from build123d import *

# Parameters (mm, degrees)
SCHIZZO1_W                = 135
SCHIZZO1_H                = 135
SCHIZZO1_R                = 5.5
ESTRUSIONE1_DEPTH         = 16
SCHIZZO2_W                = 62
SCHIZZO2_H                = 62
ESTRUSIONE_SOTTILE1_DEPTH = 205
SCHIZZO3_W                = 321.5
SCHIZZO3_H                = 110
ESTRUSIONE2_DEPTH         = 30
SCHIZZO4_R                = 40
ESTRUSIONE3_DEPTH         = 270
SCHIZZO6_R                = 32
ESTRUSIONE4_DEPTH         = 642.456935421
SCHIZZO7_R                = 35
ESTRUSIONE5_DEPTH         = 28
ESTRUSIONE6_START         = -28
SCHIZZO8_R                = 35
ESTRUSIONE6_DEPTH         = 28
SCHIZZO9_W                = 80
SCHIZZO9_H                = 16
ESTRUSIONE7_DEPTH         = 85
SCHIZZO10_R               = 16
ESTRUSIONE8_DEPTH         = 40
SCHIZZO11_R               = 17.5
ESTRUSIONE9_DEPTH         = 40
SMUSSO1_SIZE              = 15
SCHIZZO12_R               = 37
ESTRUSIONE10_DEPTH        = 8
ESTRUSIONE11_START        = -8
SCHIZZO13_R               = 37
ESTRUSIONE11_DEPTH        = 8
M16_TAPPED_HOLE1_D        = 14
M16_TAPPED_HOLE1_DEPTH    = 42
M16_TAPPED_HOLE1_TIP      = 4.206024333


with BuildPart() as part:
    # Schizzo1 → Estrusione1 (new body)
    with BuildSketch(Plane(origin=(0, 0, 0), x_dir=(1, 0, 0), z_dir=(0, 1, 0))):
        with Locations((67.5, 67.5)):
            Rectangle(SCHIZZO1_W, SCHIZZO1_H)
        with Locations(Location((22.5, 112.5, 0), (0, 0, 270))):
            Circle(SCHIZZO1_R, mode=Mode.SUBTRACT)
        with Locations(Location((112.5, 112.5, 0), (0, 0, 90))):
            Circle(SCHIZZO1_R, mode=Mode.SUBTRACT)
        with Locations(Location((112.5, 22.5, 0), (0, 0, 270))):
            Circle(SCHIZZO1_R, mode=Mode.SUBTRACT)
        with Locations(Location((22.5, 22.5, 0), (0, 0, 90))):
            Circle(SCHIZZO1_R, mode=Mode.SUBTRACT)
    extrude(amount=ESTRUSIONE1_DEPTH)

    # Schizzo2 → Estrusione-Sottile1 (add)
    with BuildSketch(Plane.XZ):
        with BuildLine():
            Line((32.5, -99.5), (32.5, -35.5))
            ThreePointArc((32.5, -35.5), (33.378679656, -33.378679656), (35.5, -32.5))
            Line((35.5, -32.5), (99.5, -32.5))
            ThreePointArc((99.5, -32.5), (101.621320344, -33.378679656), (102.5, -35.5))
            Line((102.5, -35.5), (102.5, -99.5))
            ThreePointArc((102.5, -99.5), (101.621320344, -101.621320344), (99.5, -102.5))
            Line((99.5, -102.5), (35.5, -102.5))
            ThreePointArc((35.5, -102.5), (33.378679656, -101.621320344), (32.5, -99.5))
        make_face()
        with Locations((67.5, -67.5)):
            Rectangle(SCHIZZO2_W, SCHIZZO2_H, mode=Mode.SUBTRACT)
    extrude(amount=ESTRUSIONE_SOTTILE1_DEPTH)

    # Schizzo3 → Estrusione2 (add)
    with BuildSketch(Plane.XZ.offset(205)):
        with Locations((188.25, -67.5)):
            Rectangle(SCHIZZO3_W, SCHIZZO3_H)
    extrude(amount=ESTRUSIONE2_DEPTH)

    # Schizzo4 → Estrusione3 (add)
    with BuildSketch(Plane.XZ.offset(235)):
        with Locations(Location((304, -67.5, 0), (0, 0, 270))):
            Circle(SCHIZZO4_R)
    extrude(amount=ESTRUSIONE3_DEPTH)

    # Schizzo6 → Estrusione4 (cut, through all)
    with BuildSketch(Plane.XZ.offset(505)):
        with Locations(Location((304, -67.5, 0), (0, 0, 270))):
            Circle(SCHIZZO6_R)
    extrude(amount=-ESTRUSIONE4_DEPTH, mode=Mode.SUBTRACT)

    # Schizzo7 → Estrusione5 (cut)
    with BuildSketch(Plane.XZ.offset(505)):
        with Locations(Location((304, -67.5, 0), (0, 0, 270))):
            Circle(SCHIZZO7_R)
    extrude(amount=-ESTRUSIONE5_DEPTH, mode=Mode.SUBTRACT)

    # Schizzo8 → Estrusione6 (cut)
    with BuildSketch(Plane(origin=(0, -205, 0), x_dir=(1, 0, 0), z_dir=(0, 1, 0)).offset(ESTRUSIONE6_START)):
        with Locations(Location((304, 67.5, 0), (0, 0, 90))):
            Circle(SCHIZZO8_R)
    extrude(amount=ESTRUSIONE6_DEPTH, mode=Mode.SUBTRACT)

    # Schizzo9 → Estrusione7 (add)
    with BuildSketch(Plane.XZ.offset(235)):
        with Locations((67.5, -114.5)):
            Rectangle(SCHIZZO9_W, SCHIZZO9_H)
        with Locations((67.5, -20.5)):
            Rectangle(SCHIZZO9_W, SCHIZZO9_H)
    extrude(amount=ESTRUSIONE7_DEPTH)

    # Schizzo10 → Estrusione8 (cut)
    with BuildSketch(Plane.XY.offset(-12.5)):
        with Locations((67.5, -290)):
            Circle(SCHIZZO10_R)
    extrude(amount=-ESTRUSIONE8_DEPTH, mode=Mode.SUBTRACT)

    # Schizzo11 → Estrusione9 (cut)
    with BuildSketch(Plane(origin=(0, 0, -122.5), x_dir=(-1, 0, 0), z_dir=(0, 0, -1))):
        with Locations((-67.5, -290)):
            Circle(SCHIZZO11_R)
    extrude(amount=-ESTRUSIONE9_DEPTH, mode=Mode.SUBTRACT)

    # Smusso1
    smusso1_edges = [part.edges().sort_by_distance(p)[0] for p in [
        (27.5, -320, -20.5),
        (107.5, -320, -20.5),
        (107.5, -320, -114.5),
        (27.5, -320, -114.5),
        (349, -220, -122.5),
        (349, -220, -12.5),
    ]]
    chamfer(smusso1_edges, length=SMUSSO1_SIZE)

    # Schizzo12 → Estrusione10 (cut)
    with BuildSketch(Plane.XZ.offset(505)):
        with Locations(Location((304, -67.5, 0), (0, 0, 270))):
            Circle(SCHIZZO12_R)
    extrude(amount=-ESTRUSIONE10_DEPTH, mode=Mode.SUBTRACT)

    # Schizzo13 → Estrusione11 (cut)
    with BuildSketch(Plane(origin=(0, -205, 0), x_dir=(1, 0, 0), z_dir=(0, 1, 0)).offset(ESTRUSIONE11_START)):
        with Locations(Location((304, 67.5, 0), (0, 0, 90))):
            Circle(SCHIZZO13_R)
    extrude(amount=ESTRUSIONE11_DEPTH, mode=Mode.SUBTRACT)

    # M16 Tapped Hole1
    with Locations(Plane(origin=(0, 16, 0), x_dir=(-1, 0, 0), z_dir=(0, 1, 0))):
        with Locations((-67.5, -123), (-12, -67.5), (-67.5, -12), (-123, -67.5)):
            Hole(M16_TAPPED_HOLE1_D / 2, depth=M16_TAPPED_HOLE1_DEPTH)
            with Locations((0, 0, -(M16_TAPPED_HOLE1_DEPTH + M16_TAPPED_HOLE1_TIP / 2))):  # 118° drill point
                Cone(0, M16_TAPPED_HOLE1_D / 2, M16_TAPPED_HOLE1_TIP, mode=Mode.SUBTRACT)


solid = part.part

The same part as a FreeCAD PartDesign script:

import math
import FreeCAD as App
import Part
import Sketcher

V = App.Vector
Q = App.Units.Quantity


def edges_at(feature, points):
    """Names of the edges that pass closest to the given points."""
    edges = feature.Shape.Edges
    near = lambda p: min(range(len(edges)), key=lambda i: edges[i].distToShape(Part.Vertex(*p))[0])
    return sorted({f"Edge{near(p) + 1}" for p in points})


def add_polygon(sketch, points):
    """Adds a closed chain of lines whose ends are joined by coincident constraints."""
    first, n = sketch.GeometryCount, len(points)
    for a, b in zip(points, points[1:] + points[:1]):
        sketch.addGeometry(Part.LineSegment(App.Vector(*a, 0), App.Vector(*b, 0)), False)
    for i in range(n):
        sketch.addConstraint(Sketcher.Constraint("Coincident", first + i, 2, first + (i + 1) % n, 1))

doc = App.newDocument("Part")
body = doc.addObject("PartDesign::Body", "Body")

# Sketch on XZ plane
sketch1 = body.newObject("Sketcher::SketchObject", "Sketch")
sketch1.AttachmentSupport = (doc.getObject("XZ_Plane"), [""])
sketch1.MapMode = "FlatFace"
add_polygon(sketch1, [(0, -135), (0, 0), (135, 0), (135, -135)])  # lines 0-3
sketch1.addGeometry(Part.Circle(V(22.5, -22.5, 0), V(0, 0, 1), 5.5), False)  # 4
sketch1.addGeometry(Part.Circle(V(112.5, -22.5, 0), V(0, 0, 1), 5.5), False)  # 5
sketch1.addGeometry(Part.Circle(V(22.5, -112.5, 0), V(0, 0, 1), 5.5), False)  # 6
sketch1.addGeometry(Part.Circle(V(112.5, -112.5, 0), V(0, 0, 1), 5.5), False)  # 7
sketch1.addConstraint([
    Sketcher.Constraint("Vertical", 0),
    Sketcher.Constraint("Horizontal", 1),
    Sketcher.Constraint("Vertical", 2),
    Sketcher.Constraint("Horizontal", 3),
    Sketcher.Constraint("Coincident", 0, 2, -1, 1),
    Sketcher.Constraint("Equal", 4, 5),
    Sketcher.Constraint("Equal", 5, 6),
    Sketcher.Constraint("Equal", 6, 7),
    Sketcher.Constraint("Horizontal", 4, 3, 5, 3),
    Sketcher.Constraint("Horizontal", 6, 3, 7, 3),
    Sketcher.Constraint("Vertical", 4, 3, 6, 3),
    Sketcher.Constraint("Vertical", 5, 3, 7, 3),
    Sketcher.Constraint("Equal", 3, 0),
    Sketcher.Constraint("Diameter", 4, Q("11 mm")),
    Sketcher.Constraint("DistanceX", 1, 1, 1, 2, Q("135 mm")),
    Sketcher.Constraint("DistanceX", 4, 3, 5, 3, Q("90 mm")),
    Sketcher.Constraint("DistanceY", 6, 3, 4, 3, Q("90 mm")),
    Sketcher.Constraint("DistanceX", -1, 1, 4, 3, Q("22.5 mm")),
    Sketcher.Constraint("DistanceY", 4, 3, -1, 1, Q("22.5 mm")),
])
pad1 = body.newObject("PartDesign::Pad", "Pad")
pad1.Profile = sketch1
pad1.Length = 16
pad1.Reversed = True

# Sketch on XZ plane
sketch2 = body.newObject("Sketcher::SketchObject", "Sketch001")
sketch2.AttachmentSupport = (doc.getObject("XZ_Plane"), [""])
sketch2.MapMode = "FlatFace"
sketch2.addGeometry(Part.LineSegment(V(32.5, -35.5, 0), V(32.5, -99.5, 0)), False)  # 0
sketch2.addGeometry(Part.ArcOfCircle(Part.Circle(V(35.5, -99.5, 0), V(0, 0, 1), 3), math.radians(180), math.radians(270)), False)  # 1
sketch2.addGeometry(Part.LineSegment(V(35.5, -102.5, 0), V(99.5, -102.5, 0)), False)  # 2
sketch2.addGeometry(Part.ArcOfCircle(Part.Circle(V(99.5, -99.5, 0), V(0, 0, 1), 3), math.radians(-90), math.radians(0)), False)  # 3
sketch2.addGeometry(Part.LineSegment(V(102.5, -99.5, 0), V(102.5, -35.5, 0)), False)  # 4
sketch2.addGeometry(Part.ArcOfCircle(Part.Circle(V(99.5, -35.5, 0), V(0, 0, 1), 3), math.radians(0), math.radians(90)), False)  # 5
sketch2.addGeometry(Part.LineSegment(V(99.5, -32.5, 0), V(35.5, -32.5, 0)), False)  # 6
sketch2.addGeometry(Part.ArcOfCircle(Part.Circle(V(35.5, -35.5, 0), V(0, 0, 1), 3), math.radians(90), math.radians(180)), False)  # 7
add_polygon(sketch2, [(36.5, -98.5), (36.5, -36.5), (98.5, -36.5), (98.5, -98.5)])  # lines 8-11
sketch2.addConstraint([
    Sketcher.Constraint("Tangent", 0, 2, 1, 1),
    Sketcher.Constraint("Tangent", 1, 2, 2, 1),
    Sketcher.Constraint("Tangent", 2, 2, 3, 1),
    Sketcher.Constraint("Tangent", 3, 2, 4, 1),
    Sketcher.Constraint("Tangent", 4, 2, 5, 1),
    Sketcher.Constraint("Tangent", 5, 2, 6, 1),
    Sketcher.Constraint("Tangent", 6, 2, 7, 1),
    Sketcher.Constraint("Tangent", 7, 2, 0, 1),
    Sketcher.Constraint("Vertical", 0),
    Sketcher.Constraint("Horizontal", 2),
    Sketcher.Constraint("Vertical", 4),
    Sketcher.Constraint("Horizontal", 6),
    Sketcher.Constraint("Vertical", 8),
    Sketcher.Constraint("Horizontal", 9),
    Sketcher.Constraint("Vertical", 10),
    Sketcher.Constraint("Horizontal", 11),
    Sketcher.Constraint("Equal", 1, 3),
    Sketcher.Constraint("Equal", 3, 5),
    Sketcher.Constraint("Equal", 5, 7),
    Sketcher.Constraint("Equal", 6, 0),
    Sketcher.Constraint("Equal", 11, 8),
    Sketcher.Constraint("Radius", 1, Q("3 mm")),
    Sketcher.Constraint("DistanceX", 2, 1, 2, 2, Q("64 mm")),
    Sketcher.Constraint("DistanceX", 9, 1, 9, 2, Q("62 mm")),
    Sketcher.Constraint("DistanceX", 7, 3, 8, 2, Q("1 mm")),
    Sketcher.Constraint("DistanceY", 8, 2, 7, 3, Q("1 mm")),
    Sketcher.Constraint("DistanceX", -1, 1, 1, 3, Q("35.5 mm")),
    Sketcher.Constraint("DistanceY", 1, 3, -1, 1, Q("99.5 mm")),
])
pad2 = body.newObject("PartDesign::Pad", "Pad001")
pad2.Profile = sketch2
pad2.Length = 205

# Sketch on XZ plane
sketch3 = body.newObject("Sketcher::SketchObject", "Sketch002")
sketch3.AttachmentSupport = (doc.getObject("XZ_Plane"), [""])
sketch3.MapMode = "FlatFace"
sketch3.AttachmentOffset = App.Placement(V(0, 0, 205), App.Rotation())
add_polygon(sketch3, [(27.5, -12.5), (27.5, -122.5), (349, -122.5), (349, -12.5)])  # lines 0-3
sketch3.addConstraint([
    Sketcher.Constraint("Vertical", 0),
    Sketcher.Constraint("Horizontal", 1),
    Sketcher.Constraint("Vertical", 2),
    Sketcher.Constraint("Horizontal", 3),
    Sketcher.Constraint("DistanceY", 0, 2, 0, 1, Q("110 mm")),
    Sketcher.Constraint("DistanceX", 1, 1, 1, 2, Q("321.5 mm")),
    Sketcher.Constraint("DistanceX", -1, 1, 1, 2, Q("349 mm")),
    Sketcher.Constraint("DistanceY", 0, 2, -1, 1, Q("122.5 mm")),
])
pad3 = body.newObject("PartDesign::Pad", "Pad002")
pad3.Profile = sketch3
pad3.Length = 30

# Sketch on XZ plane
sketch4 = body.newObject("Sketcher::SketchObject", "Sketch003")
sketch4.AttachmentSupport = (doc.getObject("XZ_Plane"), [""])
sketch4.MapMode = "FlatFace"
sketch4.AttachmentOffset = App.Placement(V(0, 0, 235), App.Rotation())
sketch4.addGeometry(Part.Circle(V(304, -67.5, 0), V(0, 0, 1), 40), False)
sketch4.addConstraint([
    Sketcher.Constraint("Diameter", 0, Q("80 mm")),
    Sketcher.Constraint("DistanceX", -1, 1, 0, 3, Q("304 mm")),
    Sketcher.Constraint("DistanceY", 0, 3, -1, 1, Q("67.5 mm")),
])
pad4 = body.newObject("PartDesign::Pad", "Pad003")
pad4.Profile = sketch4
pad4.Length = 270

# Sketch on XZ plane
sketch5 = body.newObject("Sketcher::SketchObject", "Sketch004")
sketch5.AttachmentSupport = (doc.getObject("XZ_Plane"), [""])
sketch5.MapMode = "FlatFace"
sketch5.AttachmentOffset = App.Placement(V(0, 0, 505), App.Rotation())
sketch5.addGeometry(Part.Circle(V(304, -67.5, 0), V(0, 0, 1), 32), False)
sketch5.addConstraint([
    Sketcher.Constraint("Diameter", 0, Q("64 mm")),
    Sketcher.Constraint("DistanceX", -1, 1, 0, 3, Q("304 mm")),
    Sketcher.Constraint("DistanceY", 0, 3, -1, 1, Q("67.5 mm")),
])
pocket1 = body.newObject("PartDesign::Pocket", "Pocket")
pocket1.Profile = sketch5
pocket1.Type = "ThroughAll"

# Sketch on XZ plane
sketch6 = body.newObject("Sketcher::SketchObject", "Sketch005")
sketch6.AttachmentSupport = (doc.getObject("XZ_Plane"), [""])
sketch6.MapMode = "FlatFace"
sketch6.AttachmentOffset = App.Placement(V(0, 0, 505), App.Rotation())
sketch6.addGeometry(Part.Circle(V(304, -67.5, 0), V(0, 0, 1), 35), False)
sketch6.addConstraint([
    Sketcher.Constraint("Diameter", 0, Q("70 mm")),
    Sketcher.Constraint("DistanceX", -1, 1, 0, 3, Q("304 mm")),
    Sketcher.Constraint("DistanceY", 0, 3, -1, 1, Q("67.5 mm")),
])
pocket2 = body.newObject("PartDesign::Pocket", "Pocket001")
pocket2.Profile = sketch6
pocket2.Length = 28

# Sketch on XZ plane
sketch7 = body.newObject("Sketcher::SketchObject", "Sketch006")
sketch7.AttachmentSupport = (doc.getObject("XZ_Plane"), [""])
sketch7.MapMode = "FlatFace"
sketch7.AttachmentOffset = App.Placement(V(0, 0, 233), App.Rotation())
sketch7.addGeometry(Part.Circle(V(304, -67.5, 0), V(0, 0, 1), 35), False)
sketch7.addConstraint([
    Sketcher.Constraint("Diameter", 0, Q("70 mm")),
    Sketcher.Constraint("DistanceX", -1, 1, 0, 3, Q("304 mm")),
    Sketcher.Constraint("DistanceY", 0, 3, -1, 1, Q("67.5 mm")),
])
pocket3 = body.newObject("PartDesign::Pocket", "Pocket002")
pocket3.Profile = sketch7
pocket3.Length = 28

# Sketch on XZ plane
sketch8 = body.newObject("Sketcher::SketchObject", "Sketch007")
sketch8.AttachmentSupport = (doc.getObject("XZ_Plane"), [""])
sketch8.MapMode = "FlatFace"
sketch8.AttachmentOffset = App.Placement(V(0, 0, 235), App.Rotation())
add_polygon(sketch8, [(27.5, -106.5), (27.5, -122.5), (107.5, -122.5), (107.5, -106.5)])  # lines 0-3
add_polygon(sketch8, [(27.5, -12.5), (27.5, -28.5), (107.5, -28.5), (107.5, -12.5)])  # lines 4-7
sketch8.addConstraint([
    Sketcher.Constraint("Vertical", 0),
    Sketcher.Constraint("Horizontal", 1),
    Sketcher.Constraint("Vertical", 2),
    Sketcher.Constraint("Horizontal", 3),
    Sketcher.Constraint("Vertical", 4),
    Sketcher.Constraint("Horizontal", 5),
    Sketcher.Constraint("Vertical", 6),
    Sketcher.Constraint("Horizontal", 7),
    Sketcher.Constraint("Vertical", 3, 2, 4, 2),
    Sketcher.Constraint("Vertical", 2, 2, 5, 2),
    Sketcher.Constraint("Equal", 2, 4),
    Sketcher.Constraint("DistanceX", 1, 1, 1, 2, Q("80 mm")),
    Sketcher.Constraint("DistanceY", 0, 2, 0, 1, Q("16 mm")),
    Sketcher.Constraint("DistanceY", 3, 2, 4, 2, Q("78 mm")),
    Sketcher.Constraint("DistanceX", -1, 1, 0, 2, Q("27.5 mm")),
    Sketcher.Constraint("DistanceY", 0, 2, -1, 1, Q("122.5 mm")),
])
pad5 = body.newObject("PartDesign::Pad", "Pad004")
pad5.Profile = sketch8
pad5.Length = 85

# Sketch on XY plane
sketch9 = body.newObject("Sketcher::SketchObject", "Sketch008")
sketch9.AttachmentSupport = (doc.getObject("XY_Plane"), [""])
sketch9.MapMode = "FlatFace"
sketch9.AttachmentOffset = App.Placement(V(0, 0, -12.5), App.Rotation())
sketch9.addGeometry(Part.Circle(V(67.5, -290, 0), V(0, 0, 1), 16), False)
sketch9.addConstraint([
    Sketcher.Constraint("Diameter", 0, Q("32 mm")),
    Sketcher.Constraint("DistanceY", 0, 3, -1, 1, Q("290 mm")),
    Sketcher.Constraint("DistanceX", -1, 1, 0, 3, Q("67.5 mm")),
])
pocket4 = body.newObject("PartDesign::Pocket", "Pocket003")
pocket4.Profile = sketch9
pocket4.Length = 40

# Sketch on XY plane
sketch10 = body.newObject("Sketcher::SketchObject", "Sketch009")
sketch10.AttachmentSupport = (doc.getObject("XY_Plane"), [""])
sketch10.MapMode = "FlatFace"
sketch10.AttachmentOffset = App.Placement(V(0, 0, -122.5), App.Rotation())
sketch10.addGeometry(Part.Circle(V(67.5, -290, 0), V(0, 0, 1), 17.5), False)
sketch10.addConstraint([
    Sketcher.Constraint("Diameter", 0, Q("35 mm")),
    Sketcher.Constraint("DistanceY", 0, 3, -1, 1, Q("290 mm")),
    Sketcher.Constraint("DistanceX", -1, 1, 0, 3, Q("67.5 mm")),
])
pocket5 = body.newObject("PartDesign::Pocket", "Pocket004")
pocket5.Profile = sketch10
pocket5.Length = 40
pocket5.Reversed = True
doc.recompute()

chamfer = body.newObject("PartDesign::Chamfer", "Chamfer")
chamfer.Base = (pocket5, edges_at(pocket5, [
    (27.5, -320, -20.5),
    (107.5, -320, -20.5),
    (107.5, -320, -114.5),
    (27.5, -320, -114.5),
    (349, -220, -122.5),
    (349, -220, -12.5),
]))
chamfer.Size = 15

# Sketch on XZ plane
sketch11 = body.newObject("Sketcher::SketchObject", "Sketch010")
sketch11.AttachmentSupport = (doc.getObject("XZ_Plane"), [""])
sketch11.MapMode = "FlatFace"
sketch11.AttachmentOffset = App.Placement(V(0, 0, 505), App.Rotation())
sketch11.addGeometry(Part.Circle(V(304, -67.5, 0), V(0, 0, 1), 37), False)
sketch11.addConstraint([
    Sketcher.Constraint("Diameter", 0, Q("74 mm")),
    Sketcher.Constraint("DistanceX", -1, 1, 0, 3, Q("304 mm")),
    Sketcher.Constraint("DistanceY", 0, 3, -1, 1, Q("67.5 mm")),
])
pocket6 = body.newObject("PartDesign::Pocket", "Pocket005")
pocket6.Profile = sketch11
pocket6.Length = 8

# Sketch on XZ plane
sketch12 = body.newObject("Sketcher::SketchObject", "Sketch011")
sketch12.AttachmentSupport = (doc.getObject("XZ_Plane"), [""])
sketch12.MapMode = "FlatFace"
sketch12.AttachmentOffset = App.Placement(V(0, 0, 213), App.Rotation())
sketch12.addGeometry(Part.Circle(V(304, -67.5, 0), V(0, 0, 1), 37), False)
sketch12.addConstraint([
    Sketcher.Constraint("Diameter", 0, Q("74 mm")),
    Sketcher.Constraint("DistanceX", -1, 1, 0, 3, Q("304 mm")),
    Sketcher.Constraint("DistanceY", 0, 3, -1, 1, Q("67.5 mm")),
])
pocket7 = body.newObject("PartDesign::Pocket", "Pocket006")
pocket7.Profile = sketch12
pocket7.Length = 8

# Sketch on XZ plane
sketch13 = body.newObject("Sketcher::SketchObject", "Sketch012")
sketch13.AttachmentSupport = (doc.getObject("XZ_Plane"), [""])
sketch13.MapMode = "FlatFace"
sketch13.AttachmentOffset = App.Placement(V(0, 0, -16), App.Rotation())
sketch13.addGeometry([
    Part.Circle(V(67.5, -123, 0), V(0, 0, 1), 7),
    Part.Circle(V(12, -67.5, 0), V(0, 0, 1), 7),
    Part.Circle(V(67.5, -12, 0), V(0, 0, 1), 7),
    Part.Circle(V(123, -67.5, 0), V(0, 0, 1), 7),
], False)
sketch13.addConstraint([
    Sketcher.Constraint("Equal", 0, 1),
    Sketcher.Constraint("Equal", 1, 2),
    Sketcher.Constraint("Equal", 2, 3),
    Sketcher.Constraint("Horizontal", 1, 3, 3, 3),
    Sketcher.Constraint("Vertical", 0, 3, 2, 3),
    Sketcher.Constraint("Diameter", 0, Q("14 mm")),
    Sketcher.Constraint("DistanceY", 0, 3, -1, 1, Q("123 mm")),
    Sketcher.Constraint("DistanceX", -1, 1, 1, 3, Q("12 mm")),
    Sketcher.Constraint("DistanceY", 2, 3, -1, 1, Q("12 mm")),
    Sketcher.Constraint("DistanceX", -1, 1, 3, 3, Q("123 mm")),
    Sketcher.Constraint("DistanceX", -1, 1, 0, 3, Q("67.5 mm")),
    Sketcher.Constraint("DistanceY", 1, 3, -1, 1, Q("67.5 mm")),
])
doc.recompute()
hole = body.newObject("PartDesign::Hole", "Hole")
hole.Profile = sketch13
hole.ThreadType = "None"
hole.Diameter = 14
hole.DepthType = "Dimension"
hole.Depth = 42
hole.DrillPoint = "Angled"
hole.DrillPointAngle = 118
hole.Reversed = True

doc.recompute()
